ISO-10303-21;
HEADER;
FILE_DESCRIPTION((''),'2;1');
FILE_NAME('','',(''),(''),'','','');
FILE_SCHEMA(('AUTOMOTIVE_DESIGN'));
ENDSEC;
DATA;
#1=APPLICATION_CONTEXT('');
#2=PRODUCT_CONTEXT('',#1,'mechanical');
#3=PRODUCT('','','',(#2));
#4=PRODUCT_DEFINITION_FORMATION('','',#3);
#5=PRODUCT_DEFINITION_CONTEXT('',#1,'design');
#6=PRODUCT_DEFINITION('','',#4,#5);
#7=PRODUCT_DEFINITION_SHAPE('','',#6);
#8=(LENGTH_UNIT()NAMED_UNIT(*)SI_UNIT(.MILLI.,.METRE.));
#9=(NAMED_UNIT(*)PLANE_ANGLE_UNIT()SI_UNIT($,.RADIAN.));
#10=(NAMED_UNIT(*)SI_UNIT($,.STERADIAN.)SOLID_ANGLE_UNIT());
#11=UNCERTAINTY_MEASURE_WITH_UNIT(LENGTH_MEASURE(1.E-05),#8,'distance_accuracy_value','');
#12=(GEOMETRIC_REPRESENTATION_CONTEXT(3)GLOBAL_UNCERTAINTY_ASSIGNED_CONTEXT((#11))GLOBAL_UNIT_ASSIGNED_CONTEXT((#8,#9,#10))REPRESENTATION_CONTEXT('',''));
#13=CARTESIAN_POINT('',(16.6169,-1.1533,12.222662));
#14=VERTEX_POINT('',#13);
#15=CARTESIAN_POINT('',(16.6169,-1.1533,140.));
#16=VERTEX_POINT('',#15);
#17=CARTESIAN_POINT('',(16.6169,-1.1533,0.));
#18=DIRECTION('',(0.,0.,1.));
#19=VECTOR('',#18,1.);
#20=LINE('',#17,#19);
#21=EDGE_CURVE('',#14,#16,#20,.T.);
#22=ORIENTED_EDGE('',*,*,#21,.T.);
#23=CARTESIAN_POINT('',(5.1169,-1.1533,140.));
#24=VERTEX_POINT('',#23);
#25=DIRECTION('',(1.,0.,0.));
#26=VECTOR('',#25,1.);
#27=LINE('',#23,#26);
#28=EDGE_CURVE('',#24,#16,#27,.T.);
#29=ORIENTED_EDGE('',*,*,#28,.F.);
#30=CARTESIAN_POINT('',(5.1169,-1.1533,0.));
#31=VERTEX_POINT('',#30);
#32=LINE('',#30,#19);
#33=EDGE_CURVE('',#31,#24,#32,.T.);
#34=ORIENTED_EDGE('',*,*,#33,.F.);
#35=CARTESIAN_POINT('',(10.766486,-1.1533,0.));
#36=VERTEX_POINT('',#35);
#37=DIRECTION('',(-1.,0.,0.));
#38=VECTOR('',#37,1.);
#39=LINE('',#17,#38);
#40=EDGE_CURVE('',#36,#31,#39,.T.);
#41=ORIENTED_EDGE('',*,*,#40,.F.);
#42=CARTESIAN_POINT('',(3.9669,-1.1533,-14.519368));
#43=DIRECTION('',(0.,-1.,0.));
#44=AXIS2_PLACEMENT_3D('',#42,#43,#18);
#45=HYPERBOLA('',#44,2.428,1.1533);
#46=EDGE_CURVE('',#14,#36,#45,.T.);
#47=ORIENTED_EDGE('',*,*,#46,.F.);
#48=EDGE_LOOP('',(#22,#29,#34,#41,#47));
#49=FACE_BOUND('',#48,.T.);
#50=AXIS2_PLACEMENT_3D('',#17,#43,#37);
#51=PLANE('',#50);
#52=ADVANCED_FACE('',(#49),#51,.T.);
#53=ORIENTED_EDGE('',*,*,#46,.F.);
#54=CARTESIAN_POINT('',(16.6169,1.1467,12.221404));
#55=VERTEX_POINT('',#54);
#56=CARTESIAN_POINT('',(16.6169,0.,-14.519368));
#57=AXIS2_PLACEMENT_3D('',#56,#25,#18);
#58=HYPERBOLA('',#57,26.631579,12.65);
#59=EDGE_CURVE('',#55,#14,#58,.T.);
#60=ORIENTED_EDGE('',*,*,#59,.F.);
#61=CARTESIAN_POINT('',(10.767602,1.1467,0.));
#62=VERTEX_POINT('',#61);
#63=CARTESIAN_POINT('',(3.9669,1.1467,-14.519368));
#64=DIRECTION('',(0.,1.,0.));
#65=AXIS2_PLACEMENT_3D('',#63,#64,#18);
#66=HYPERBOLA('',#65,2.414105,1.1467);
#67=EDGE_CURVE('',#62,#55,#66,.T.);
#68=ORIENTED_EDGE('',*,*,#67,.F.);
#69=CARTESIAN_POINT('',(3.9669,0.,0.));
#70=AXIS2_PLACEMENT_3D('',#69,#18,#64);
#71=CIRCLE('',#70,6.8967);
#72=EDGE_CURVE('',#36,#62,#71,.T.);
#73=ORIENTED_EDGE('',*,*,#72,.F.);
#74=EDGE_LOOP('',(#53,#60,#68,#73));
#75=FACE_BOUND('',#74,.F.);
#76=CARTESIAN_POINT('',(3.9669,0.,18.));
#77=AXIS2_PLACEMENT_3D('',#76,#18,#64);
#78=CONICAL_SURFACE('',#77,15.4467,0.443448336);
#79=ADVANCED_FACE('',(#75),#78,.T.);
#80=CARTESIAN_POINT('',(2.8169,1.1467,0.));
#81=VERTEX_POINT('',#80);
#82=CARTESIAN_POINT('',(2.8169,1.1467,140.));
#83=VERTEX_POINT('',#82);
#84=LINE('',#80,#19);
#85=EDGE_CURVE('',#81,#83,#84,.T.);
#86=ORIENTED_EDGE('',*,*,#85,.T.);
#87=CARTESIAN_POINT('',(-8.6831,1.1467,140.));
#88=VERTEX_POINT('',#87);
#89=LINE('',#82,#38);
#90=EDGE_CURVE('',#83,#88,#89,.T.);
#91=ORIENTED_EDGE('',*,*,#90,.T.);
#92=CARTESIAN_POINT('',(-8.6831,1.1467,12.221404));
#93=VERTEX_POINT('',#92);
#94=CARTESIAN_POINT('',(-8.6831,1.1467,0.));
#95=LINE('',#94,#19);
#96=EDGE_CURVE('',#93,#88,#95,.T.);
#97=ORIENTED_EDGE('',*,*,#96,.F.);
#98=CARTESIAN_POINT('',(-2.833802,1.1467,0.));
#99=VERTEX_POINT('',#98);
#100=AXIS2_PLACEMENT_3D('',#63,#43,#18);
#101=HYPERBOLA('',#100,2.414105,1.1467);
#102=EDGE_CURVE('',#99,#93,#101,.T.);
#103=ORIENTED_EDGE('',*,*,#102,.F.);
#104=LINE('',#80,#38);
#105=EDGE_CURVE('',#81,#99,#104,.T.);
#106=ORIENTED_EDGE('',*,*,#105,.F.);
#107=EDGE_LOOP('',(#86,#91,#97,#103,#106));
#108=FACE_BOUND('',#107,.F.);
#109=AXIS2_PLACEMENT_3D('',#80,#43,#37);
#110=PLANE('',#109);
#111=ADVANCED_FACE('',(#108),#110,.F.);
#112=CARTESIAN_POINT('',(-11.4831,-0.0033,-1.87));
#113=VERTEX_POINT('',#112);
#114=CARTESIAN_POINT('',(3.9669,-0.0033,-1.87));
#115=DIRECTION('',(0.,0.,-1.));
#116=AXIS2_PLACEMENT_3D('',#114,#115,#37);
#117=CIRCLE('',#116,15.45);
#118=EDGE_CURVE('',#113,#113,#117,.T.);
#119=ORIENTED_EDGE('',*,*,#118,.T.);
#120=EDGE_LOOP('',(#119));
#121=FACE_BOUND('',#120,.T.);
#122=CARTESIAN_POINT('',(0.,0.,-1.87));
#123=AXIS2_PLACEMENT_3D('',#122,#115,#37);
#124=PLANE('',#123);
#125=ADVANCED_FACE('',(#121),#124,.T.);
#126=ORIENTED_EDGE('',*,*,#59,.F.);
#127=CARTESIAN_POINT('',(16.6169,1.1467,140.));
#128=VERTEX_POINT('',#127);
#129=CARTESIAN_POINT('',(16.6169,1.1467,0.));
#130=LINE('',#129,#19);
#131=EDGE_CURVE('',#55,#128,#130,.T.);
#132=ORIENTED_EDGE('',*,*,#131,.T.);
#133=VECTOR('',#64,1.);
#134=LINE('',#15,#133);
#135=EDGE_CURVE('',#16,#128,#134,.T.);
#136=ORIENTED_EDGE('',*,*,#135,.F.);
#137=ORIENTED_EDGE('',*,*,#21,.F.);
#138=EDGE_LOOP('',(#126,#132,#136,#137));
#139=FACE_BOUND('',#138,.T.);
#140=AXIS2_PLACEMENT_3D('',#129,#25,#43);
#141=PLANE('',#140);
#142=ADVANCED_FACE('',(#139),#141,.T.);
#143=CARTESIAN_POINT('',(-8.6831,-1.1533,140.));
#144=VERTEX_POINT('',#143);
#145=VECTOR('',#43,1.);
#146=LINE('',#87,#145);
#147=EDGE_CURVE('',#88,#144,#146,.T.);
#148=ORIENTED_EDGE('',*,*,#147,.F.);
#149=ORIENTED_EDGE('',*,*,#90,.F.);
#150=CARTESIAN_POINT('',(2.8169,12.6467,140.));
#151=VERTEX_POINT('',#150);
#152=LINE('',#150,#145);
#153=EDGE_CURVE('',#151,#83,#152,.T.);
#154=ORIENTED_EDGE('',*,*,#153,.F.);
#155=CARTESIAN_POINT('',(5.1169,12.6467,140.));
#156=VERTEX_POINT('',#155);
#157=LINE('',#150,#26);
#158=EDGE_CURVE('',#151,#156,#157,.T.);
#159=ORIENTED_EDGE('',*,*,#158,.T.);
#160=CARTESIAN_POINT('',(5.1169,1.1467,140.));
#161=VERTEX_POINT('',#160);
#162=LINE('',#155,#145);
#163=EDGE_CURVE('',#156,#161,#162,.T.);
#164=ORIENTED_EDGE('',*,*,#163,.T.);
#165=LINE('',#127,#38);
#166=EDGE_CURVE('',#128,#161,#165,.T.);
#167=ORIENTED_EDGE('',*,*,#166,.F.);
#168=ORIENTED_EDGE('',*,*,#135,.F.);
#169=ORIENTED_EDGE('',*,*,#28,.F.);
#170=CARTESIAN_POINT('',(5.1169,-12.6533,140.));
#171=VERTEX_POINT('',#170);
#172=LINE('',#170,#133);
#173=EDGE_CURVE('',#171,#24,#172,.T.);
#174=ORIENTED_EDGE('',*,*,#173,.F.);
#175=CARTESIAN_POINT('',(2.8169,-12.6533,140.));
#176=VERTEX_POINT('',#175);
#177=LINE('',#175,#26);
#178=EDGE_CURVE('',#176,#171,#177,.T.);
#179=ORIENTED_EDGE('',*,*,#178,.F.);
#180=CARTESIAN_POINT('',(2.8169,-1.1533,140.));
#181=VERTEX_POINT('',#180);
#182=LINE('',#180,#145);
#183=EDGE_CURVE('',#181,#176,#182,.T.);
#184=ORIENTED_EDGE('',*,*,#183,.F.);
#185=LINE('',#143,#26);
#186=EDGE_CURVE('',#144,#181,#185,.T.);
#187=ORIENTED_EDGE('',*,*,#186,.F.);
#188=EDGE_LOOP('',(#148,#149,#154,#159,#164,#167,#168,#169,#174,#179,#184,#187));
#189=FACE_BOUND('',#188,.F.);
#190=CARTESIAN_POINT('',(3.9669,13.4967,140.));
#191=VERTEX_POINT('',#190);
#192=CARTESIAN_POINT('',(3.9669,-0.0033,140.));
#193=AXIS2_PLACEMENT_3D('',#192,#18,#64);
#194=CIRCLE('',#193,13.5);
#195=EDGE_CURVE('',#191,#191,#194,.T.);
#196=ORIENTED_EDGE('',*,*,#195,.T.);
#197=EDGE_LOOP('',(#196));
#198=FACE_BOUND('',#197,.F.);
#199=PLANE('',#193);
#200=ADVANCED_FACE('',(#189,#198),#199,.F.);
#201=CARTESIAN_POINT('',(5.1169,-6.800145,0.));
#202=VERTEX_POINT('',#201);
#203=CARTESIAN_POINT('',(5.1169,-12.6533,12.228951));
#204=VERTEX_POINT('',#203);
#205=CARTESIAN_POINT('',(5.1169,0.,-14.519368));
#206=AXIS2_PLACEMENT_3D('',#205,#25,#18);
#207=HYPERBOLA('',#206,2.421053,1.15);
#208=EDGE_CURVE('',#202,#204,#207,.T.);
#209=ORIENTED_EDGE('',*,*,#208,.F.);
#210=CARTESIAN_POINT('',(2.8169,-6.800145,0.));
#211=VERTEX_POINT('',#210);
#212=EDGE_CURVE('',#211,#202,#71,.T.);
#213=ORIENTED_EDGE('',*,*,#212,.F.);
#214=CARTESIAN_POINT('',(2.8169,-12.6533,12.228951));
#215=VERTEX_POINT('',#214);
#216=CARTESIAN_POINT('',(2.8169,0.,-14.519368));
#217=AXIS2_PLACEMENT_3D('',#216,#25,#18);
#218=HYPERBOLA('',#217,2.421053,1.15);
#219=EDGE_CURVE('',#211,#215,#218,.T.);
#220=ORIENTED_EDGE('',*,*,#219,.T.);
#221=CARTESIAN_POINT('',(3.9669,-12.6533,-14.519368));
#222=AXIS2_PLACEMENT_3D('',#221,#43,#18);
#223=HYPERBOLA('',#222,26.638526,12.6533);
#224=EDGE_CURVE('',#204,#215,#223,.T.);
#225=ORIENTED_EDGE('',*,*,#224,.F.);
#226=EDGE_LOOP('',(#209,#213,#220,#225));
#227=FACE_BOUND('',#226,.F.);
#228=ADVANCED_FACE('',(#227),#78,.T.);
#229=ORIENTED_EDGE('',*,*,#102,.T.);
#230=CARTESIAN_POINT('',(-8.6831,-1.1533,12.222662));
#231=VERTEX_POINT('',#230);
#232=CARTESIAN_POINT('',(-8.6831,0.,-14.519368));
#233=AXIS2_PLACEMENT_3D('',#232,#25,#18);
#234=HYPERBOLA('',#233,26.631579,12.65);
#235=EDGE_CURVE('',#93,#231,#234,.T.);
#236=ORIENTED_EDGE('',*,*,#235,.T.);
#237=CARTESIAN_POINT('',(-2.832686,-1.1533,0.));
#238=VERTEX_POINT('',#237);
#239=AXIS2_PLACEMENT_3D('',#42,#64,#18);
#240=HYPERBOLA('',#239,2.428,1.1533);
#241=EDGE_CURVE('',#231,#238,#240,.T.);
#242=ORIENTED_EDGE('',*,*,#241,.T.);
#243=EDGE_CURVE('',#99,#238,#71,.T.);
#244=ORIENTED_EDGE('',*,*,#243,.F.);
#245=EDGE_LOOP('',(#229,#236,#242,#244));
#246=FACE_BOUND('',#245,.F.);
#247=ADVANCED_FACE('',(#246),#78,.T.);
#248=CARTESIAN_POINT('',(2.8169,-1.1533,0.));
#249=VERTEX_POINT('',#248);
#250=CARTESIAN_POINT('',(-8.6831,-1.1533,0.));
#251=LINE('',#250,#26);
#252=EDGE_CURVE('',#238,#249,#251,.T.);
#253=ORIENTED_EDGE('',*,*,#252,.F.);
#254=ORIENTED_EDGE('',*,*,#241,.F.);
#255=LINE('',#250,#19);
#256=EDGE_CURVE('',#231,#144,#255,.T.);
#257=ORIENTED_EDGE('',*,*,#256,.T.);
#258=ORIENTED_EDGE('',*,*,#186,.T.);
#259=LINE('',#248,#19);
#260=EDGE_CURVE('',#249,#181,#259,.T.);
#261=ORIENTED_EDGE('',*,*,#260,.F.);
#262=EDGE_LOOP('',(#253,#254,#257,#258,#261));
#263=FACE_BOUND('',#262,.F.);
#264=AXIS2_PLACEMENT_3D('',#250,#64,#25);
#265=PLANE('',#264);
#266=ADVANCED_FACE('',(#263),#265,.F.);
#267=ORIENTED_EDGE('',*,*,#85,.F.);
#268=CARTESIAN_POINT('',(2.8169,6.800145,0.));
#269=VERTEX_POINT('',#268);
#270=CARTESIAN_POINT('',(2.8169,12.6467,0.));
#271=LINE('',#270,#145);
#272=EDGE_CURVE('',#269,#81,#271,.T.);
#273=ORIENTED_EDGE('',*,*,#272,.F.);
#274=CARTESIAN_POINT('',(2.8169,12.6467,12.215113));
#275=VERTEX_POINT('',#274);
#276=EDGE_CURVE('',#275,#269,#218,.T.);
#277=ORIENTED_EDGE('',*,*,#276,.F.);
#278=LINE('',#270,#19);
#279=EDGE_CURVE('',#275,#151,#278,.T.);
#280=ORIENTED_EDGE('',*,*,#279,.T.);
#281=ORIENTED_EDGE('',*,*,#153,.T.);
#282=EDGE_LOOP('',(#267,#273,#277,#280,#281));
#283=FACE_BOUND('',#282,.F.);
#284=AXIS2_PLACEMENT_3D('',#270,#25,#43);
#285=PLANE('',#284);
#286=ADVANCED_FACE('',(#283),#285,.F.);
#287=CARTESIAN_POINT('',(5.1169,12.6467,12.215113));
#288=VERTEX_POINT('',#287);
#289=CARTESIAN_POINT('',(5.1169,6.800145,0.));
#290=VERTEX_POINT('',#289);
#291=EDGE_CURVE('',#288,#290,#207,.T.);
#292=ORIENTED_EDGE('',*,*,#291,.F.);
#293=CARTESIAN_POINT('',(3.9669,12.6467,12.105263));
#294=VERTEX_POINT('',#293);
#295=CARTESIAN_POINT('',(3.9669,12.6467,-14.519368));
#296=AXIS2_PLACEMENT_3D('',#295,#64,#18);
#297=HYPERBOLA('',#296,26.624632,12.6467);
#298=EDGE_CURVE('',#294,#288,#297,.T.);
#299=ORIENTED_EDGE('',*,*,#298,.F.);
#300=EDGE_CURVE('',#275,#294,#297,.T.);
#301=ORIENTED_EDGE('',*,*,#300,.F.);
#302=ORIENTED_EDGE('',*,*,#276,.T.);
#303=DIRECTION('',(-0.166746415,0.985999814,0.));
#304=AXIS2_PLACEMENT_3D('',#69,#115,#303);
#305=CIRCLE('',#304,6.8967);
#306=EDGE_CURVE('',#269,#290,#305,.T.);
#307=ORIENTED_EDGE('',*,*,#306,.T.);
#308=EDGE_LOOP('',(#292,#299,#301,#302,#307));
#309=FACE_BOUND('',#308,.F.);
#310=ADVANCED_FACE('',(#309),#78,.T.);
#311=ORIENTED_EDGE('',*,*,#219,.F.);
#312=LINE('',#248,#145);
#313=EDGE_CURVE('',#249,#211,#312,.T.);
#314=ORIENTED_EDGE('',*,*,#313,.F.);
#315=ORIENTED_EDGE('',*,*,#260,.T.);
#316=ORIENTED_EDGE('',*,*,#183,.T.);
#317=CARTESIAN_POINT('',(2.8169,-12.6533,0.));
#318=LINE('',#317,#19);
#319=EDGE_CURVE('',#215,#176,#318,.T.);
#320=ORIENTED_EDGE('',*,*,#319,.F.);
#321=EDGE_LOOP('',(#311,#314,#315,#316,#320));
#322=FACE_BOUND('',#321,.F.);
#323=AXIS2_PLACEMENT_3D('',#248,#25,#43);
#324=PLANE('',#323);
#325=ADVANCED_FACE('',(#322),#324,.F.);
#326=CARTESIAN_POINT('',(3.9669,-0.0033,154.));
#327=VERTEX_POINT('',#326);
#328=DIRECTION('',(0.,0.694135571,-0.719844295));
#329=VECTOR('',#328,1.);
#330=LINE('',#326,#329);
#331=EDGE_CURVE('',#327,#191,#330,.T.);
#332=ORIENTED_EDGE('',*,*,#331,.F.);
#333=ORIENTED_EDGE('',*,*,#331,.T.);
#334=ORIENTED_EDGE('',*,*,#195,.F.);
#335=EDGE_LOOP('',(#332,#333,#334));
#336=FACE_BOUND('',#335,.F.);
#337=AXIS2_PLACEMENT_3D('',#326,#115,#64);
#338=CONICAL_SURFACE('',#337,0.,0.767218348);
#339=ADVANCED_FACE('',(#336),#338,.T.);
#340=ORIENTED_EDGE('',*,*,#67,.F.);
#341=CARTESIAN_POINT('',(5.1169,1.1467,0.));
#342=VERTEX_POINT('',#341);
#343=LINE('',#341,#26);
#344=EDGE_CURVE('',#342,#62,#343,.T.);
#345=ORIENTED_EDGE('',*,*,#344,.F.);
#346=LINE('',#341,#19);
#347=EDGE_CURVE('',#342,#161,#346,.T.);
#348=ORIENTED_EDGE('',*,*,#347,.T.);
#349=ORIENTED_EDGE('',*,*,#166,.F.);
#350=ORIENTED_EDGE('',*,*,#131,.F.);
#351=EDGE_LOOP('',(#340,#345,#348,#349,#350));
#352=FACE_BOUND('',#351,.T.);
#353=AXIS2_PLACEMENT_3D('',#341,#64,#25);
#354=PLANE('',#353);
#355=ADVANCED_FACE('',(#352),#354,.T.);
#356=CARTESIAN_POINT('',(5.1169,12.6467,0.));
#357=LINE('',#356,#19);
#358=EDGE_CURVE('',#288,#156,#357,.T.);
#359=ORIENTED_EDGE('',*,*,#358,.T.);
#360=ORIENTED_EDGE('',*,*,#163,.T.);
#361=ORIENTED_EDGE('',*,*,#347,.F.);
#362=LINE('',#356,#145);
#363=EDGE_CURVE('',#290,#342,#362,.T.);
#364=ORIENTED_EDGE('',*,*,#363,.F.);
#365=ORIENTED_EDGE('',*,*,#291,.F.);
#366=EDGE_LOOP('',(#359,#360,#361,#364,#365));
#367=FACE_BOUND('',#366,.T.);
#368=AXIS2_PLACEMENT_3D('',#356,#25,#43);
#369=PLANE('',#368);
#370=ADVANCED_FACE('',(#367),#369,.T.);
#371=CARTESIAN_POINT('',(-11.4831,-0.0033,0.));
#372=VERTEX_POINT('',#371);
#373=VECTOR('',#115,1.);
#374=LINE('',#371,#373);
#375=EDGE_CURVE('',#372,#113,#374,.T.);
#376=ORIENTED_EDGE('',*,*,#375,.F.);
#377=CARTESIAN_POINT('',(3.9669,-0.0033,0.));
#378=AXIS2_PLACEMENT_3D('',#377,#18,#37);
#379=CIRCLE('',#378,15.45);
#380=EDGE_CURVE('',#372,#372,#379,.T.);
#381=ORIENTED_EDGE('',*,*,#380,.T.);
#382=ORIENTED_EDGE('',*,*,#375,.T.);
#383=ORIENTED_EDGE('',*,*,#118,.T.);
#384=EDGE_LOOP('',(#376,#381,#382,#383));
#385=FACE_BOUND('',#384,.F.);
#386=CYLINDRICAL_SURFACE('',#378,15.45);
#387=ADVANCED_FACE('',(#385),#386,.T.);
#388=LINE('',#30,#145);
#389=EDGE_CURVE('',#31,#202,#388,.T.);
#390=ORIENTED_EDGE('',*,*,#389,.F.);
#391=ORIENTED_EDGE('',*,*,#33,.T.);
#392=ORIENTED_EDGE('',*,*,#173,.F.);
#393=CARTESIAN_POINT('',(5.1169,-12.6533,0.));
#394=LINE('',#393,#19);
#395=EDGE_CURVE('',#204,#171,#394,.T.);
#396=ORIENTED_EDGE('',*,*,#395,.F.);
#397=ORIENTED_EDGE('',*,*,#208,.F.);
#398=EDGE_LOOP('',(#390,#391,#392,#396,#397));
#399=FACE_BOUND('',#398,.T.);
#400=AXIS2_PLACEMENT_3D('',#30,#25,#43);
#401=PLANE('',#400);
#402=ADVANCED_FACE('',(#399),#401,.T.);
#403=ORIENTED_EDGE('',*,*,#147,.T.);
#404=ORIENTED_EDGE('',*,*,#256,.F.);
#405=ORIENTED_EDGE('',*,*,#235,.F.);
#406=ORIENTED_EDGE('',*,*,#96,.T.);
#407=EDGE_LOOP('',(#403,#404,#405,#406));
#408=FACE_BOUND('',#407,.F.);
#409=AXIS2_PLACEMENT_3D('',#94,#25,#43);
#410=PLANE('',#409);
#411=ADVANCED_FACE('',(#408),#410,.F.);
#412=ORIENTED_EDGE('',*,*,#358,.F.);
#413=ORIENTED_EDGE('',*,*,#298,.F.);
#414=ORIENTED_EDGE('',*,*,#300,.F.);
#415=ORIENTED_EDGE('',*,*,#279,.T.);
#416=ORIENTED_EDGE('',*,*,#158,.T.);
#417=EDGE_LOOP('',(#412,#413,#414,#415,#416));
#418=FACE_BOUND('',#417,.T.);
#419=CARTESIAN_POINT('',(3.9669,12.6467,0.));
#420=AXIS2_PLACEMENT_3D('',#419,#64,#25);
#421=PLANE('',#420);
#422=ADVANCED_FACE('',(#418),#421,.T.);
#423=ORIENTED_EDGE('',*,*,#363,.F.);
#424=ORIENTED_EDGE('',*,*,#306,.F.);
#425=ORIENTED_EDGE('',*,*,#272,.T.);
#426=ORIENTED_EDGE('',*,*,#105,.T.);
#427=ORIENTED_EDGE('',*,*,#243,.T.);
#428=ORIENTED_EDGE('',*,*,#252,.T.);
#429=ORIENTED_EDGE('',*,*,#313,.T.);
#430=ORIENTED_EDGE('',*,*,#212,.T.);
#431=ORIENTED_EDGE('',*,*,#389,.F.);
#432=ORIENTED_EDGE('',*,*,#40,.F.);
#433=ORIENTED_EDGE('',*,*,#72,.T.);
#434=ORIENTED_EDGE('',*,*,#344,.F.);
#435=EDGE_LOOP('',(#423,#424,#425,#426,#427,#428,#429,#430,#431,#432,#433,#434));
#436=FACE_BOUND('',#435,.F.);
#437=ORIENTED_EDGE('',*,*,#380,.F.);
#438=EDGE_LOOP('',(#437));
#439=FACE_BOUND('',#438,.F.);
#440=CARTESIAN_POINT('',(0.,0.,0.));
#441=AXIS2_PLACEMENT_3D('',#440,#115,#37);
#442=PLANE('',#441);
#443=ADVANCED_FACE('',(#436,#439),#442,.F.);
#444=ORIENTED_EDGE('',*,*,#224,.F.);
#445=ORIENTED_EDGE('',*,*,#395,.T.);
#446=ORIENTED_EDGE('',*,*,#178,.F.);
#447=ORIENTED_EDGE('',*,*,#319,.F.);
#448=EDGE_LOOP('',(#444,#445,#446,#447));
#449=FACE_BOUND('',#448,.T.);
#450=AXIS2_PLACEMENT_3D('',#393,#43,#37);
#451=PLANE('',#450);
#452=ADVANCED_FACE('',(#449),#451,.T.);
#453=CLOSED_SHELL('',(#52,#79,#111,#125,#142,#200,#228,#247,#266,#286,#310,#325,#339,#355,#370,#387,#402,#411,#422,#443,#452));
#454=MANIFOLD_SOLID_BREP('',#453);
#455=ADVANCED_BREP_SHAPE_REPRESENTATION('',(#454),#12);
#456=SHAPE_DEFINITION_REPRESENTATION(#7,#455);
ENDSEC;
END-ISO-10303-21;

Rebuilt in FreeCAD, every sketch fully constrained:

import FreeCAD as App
import Part
import Sketcher
from FreeCAD import Vector
Q = App.Units.Quantity


def add_polygon(sketch, points):
    """Adds a closed chain of lines whose ends are joined by coincident constraints."""
    first, n = sketch.GeometryCount, len(points)
    for a, b in zip(points, points[1:] + points[:1]):
        sketch.addGeometry(Part.LineSegment(App.Vector(*a, 0), App.Vector(*b, 0)), False)
    for i in range(n):
        sketch.addConstraint(Sketcher.Constraint("Coincident", first + i, 2, first + (i + 1) % n, 1))

doc = App.newDocument("Part")
body = doc.addObject("PartDesign::Body", "Body")

# Sketch on XY plane
sketch1 = body.newObject("Sketcher::SketchObject", "Sketch")
sketch1.AttachmentSupport = (doc.getObject("XY_Plane"), [""])
sketch1.MapMode = "FlatFace"
add_polygon(sketch1, [(5.1, 12.6), (2.8, 12.6), (2.8, 1.1), (-8.7, 1.1), (-8.7, -1.2), (2.8, -1.2), (2.8, -12.7), (5.1, -12.7), (5.1, -1.2), (16.6, -1.2), (16.6, 1.1), (5.1, 1.1)])  # lines 0-11
sketch1.addConstraint([
    Sketcher.Constraint("Horizontal", 0),
    Sketcher.Constraint("Vertical", 1),
    Sketcher.Constraint("Horizontal", 2),
    Sketcher.Constraint("Vertical", 3),
    Sketcher.Constraint("Horizontal", 4),
    Sketcher.Constraint("Vertical", 5),
    Sketcher.Constraint("Horizontal", 6),
    Sketcher.Constraint("Vertical", 7),
    Sketcher.Constraint("Horizontal", 8),
    Sketcher.Constraint("Vertical", 9),
    Sketcher.Constraint("Horizontal", 10),
    Sketcher.Constraint("Vertical", 11),
    Sketcher.Constraint("Horizontal", 4, 2, 7, 2),
    Sketcher.Constraint("Horizontal", 2, 2, 9, 2),
    Sketcher.Constraint("Vertical", 1, 2, 4, 2),
    Sketcher.Constraint("Vertical", 7, 2, 10, 2),
    Sketcher.Constraint("Equal", 4, 8),
    Sketcher.Constraint("Equal", 10, 1),
    Sketcher.Constraint("Equal", 6, 3),
    Sketcher.Constraint("Equal", 1, 5),
    Sketcher.Constraint("DistanceX", 0, 2, 0, 1, Q("2.3 mm")),
    Sketcher.Constraint("DistanceX", 2, 2, 2, 1, Q("11.5 mm")),
    Sketcher.Constraint("DistanceX", -1, 1, 0, 2, Q("2.817 mm")),
    Sketcher.Constraint("DistanceY", -1, 1, 0, 2, Q("12.6467 mm")),
])
pad1 = body.newObject("PartDesign::Pad", "Pad")
pad1.Profile = sketch1
pad1.Length = 140

# Sketch on YZ plane
sketch2 = body.newObject("Sketcher::SketchObject", "Sketch001")
sketch2.AttachmentSupport = (doc.getObject("YZ_Plane"), [""])
sketch2.MapMode = "FlatFace"
sketch2.AttachmentOffset = App.Placement(Vector(0, 0, 3.9669), App.Rotation())
add_polygon(sketch2, [(13, 140), (0, 140), (0, 154)])  # lines 0-2
sketch2.addGeometry(Part.LineSegment(Vector(0, 140, 0), Vector(0, 154, 0)), True)  # axis
sketch2.addConstraint([
    Sketcher.Constraint("Horizontal", 0),
    Sketcher.Constraint("Vertical", 1),
    Sketcher.Constraint("Vertical", 3),
    Sketcher.Constraint("Coincident", 3, 1, 0, 2),
    Sketcher.Constraint("Equal", 1, 3),
    Sketcher.Constraint("DistanceY", 1, 1, 1, 2, Q("14 mm")),
    Sketcher.Constraint("DistanceX", 0, 2, 0, 1, Q("13.5 mm")),
    Sketcher.Constraint("DistanceY", -1, 1, 0, 2, Q("140 mm")),
    Sketcher.Constraint("DistanceX", 0, 2, -1, 1, Q("0.0033 mm")),
])
revolution = body.newObject("PartDesign::Revolution", "Revolution")
revolution.Profile = sketch2
revolution.ReferenceAxis = (sketch2, ["Axis0"])
revolution.Angle = 360

# Sketch on XY plane
sketch3 = body.newObject("Sketcher::SketchObject", "Sketch002")
sketch3.AttachmentSupport = (doc.getObject("XY_Plane"), [""])
sketch3.MapMode = "FlatFace"
sketch3.addGeometry(Part.Circle(Vector(4, 0, 0), Vector(0, 0, 1), 15), False)
sketch3.addConstraint([
    Sketcher.Constraint("Diameter", 0, Q("30.9 mm")),
    Sketcher.Constraint("DistanceX", -1, 1, 0, 3, Q("3.967 mm")),
    Sketcher.Constraint("DistanceY", 0, 3, -1, 1, Q("0.0033 mm")),
])
pad2 = body.newObject("PartDesign::Pad", "Pad001")
pad2.Profile = sketch3
pad2.Length = 1.87
pad2.Reversed = True

# Sketch on YZ plane
sketch4 = body.newObject("Sketcher::SketchObject", "Sketch003")
sketch4.AttachmentSupport = (doc.getObject("YZ_Plane"), [""])
sketch4.MapMode = "FlatFace"
sketch4.AttachmentOffset = App.Placement(Vector(0, 0, 3.9669), App.Rotation())
add_polygon(sketch4, [(7, 0), (15, 18), (15, 0)])  # lines 0-2
sketch4.addConstraint([
    Sketcher.Constraint("Vertical", 1),
    Sketcher.Constraint("Horizontal", 2),
    Sketcher.Constraint("PointOnObject", 1, 2, -1),
    Sketcher.Constraint("DistanceY", 1, 2, 1, 1, Q("18 mm")),
    Sketcher.Constraint("DistanceX", 2, 2, 2, 1, Q("8.55 mm")),
    Sketcher.Constraint("DistanceX", -1, 1, 0, 2, Q("15.4467 mm")),
])
groove = body.newObject("PartDesign::Groove", "Groove")
groove.Profile = sketch4
groove.ReferenceAxis = (sketch4, ["V_Axis"])
groove.Angle = 360

doc.recompute()
